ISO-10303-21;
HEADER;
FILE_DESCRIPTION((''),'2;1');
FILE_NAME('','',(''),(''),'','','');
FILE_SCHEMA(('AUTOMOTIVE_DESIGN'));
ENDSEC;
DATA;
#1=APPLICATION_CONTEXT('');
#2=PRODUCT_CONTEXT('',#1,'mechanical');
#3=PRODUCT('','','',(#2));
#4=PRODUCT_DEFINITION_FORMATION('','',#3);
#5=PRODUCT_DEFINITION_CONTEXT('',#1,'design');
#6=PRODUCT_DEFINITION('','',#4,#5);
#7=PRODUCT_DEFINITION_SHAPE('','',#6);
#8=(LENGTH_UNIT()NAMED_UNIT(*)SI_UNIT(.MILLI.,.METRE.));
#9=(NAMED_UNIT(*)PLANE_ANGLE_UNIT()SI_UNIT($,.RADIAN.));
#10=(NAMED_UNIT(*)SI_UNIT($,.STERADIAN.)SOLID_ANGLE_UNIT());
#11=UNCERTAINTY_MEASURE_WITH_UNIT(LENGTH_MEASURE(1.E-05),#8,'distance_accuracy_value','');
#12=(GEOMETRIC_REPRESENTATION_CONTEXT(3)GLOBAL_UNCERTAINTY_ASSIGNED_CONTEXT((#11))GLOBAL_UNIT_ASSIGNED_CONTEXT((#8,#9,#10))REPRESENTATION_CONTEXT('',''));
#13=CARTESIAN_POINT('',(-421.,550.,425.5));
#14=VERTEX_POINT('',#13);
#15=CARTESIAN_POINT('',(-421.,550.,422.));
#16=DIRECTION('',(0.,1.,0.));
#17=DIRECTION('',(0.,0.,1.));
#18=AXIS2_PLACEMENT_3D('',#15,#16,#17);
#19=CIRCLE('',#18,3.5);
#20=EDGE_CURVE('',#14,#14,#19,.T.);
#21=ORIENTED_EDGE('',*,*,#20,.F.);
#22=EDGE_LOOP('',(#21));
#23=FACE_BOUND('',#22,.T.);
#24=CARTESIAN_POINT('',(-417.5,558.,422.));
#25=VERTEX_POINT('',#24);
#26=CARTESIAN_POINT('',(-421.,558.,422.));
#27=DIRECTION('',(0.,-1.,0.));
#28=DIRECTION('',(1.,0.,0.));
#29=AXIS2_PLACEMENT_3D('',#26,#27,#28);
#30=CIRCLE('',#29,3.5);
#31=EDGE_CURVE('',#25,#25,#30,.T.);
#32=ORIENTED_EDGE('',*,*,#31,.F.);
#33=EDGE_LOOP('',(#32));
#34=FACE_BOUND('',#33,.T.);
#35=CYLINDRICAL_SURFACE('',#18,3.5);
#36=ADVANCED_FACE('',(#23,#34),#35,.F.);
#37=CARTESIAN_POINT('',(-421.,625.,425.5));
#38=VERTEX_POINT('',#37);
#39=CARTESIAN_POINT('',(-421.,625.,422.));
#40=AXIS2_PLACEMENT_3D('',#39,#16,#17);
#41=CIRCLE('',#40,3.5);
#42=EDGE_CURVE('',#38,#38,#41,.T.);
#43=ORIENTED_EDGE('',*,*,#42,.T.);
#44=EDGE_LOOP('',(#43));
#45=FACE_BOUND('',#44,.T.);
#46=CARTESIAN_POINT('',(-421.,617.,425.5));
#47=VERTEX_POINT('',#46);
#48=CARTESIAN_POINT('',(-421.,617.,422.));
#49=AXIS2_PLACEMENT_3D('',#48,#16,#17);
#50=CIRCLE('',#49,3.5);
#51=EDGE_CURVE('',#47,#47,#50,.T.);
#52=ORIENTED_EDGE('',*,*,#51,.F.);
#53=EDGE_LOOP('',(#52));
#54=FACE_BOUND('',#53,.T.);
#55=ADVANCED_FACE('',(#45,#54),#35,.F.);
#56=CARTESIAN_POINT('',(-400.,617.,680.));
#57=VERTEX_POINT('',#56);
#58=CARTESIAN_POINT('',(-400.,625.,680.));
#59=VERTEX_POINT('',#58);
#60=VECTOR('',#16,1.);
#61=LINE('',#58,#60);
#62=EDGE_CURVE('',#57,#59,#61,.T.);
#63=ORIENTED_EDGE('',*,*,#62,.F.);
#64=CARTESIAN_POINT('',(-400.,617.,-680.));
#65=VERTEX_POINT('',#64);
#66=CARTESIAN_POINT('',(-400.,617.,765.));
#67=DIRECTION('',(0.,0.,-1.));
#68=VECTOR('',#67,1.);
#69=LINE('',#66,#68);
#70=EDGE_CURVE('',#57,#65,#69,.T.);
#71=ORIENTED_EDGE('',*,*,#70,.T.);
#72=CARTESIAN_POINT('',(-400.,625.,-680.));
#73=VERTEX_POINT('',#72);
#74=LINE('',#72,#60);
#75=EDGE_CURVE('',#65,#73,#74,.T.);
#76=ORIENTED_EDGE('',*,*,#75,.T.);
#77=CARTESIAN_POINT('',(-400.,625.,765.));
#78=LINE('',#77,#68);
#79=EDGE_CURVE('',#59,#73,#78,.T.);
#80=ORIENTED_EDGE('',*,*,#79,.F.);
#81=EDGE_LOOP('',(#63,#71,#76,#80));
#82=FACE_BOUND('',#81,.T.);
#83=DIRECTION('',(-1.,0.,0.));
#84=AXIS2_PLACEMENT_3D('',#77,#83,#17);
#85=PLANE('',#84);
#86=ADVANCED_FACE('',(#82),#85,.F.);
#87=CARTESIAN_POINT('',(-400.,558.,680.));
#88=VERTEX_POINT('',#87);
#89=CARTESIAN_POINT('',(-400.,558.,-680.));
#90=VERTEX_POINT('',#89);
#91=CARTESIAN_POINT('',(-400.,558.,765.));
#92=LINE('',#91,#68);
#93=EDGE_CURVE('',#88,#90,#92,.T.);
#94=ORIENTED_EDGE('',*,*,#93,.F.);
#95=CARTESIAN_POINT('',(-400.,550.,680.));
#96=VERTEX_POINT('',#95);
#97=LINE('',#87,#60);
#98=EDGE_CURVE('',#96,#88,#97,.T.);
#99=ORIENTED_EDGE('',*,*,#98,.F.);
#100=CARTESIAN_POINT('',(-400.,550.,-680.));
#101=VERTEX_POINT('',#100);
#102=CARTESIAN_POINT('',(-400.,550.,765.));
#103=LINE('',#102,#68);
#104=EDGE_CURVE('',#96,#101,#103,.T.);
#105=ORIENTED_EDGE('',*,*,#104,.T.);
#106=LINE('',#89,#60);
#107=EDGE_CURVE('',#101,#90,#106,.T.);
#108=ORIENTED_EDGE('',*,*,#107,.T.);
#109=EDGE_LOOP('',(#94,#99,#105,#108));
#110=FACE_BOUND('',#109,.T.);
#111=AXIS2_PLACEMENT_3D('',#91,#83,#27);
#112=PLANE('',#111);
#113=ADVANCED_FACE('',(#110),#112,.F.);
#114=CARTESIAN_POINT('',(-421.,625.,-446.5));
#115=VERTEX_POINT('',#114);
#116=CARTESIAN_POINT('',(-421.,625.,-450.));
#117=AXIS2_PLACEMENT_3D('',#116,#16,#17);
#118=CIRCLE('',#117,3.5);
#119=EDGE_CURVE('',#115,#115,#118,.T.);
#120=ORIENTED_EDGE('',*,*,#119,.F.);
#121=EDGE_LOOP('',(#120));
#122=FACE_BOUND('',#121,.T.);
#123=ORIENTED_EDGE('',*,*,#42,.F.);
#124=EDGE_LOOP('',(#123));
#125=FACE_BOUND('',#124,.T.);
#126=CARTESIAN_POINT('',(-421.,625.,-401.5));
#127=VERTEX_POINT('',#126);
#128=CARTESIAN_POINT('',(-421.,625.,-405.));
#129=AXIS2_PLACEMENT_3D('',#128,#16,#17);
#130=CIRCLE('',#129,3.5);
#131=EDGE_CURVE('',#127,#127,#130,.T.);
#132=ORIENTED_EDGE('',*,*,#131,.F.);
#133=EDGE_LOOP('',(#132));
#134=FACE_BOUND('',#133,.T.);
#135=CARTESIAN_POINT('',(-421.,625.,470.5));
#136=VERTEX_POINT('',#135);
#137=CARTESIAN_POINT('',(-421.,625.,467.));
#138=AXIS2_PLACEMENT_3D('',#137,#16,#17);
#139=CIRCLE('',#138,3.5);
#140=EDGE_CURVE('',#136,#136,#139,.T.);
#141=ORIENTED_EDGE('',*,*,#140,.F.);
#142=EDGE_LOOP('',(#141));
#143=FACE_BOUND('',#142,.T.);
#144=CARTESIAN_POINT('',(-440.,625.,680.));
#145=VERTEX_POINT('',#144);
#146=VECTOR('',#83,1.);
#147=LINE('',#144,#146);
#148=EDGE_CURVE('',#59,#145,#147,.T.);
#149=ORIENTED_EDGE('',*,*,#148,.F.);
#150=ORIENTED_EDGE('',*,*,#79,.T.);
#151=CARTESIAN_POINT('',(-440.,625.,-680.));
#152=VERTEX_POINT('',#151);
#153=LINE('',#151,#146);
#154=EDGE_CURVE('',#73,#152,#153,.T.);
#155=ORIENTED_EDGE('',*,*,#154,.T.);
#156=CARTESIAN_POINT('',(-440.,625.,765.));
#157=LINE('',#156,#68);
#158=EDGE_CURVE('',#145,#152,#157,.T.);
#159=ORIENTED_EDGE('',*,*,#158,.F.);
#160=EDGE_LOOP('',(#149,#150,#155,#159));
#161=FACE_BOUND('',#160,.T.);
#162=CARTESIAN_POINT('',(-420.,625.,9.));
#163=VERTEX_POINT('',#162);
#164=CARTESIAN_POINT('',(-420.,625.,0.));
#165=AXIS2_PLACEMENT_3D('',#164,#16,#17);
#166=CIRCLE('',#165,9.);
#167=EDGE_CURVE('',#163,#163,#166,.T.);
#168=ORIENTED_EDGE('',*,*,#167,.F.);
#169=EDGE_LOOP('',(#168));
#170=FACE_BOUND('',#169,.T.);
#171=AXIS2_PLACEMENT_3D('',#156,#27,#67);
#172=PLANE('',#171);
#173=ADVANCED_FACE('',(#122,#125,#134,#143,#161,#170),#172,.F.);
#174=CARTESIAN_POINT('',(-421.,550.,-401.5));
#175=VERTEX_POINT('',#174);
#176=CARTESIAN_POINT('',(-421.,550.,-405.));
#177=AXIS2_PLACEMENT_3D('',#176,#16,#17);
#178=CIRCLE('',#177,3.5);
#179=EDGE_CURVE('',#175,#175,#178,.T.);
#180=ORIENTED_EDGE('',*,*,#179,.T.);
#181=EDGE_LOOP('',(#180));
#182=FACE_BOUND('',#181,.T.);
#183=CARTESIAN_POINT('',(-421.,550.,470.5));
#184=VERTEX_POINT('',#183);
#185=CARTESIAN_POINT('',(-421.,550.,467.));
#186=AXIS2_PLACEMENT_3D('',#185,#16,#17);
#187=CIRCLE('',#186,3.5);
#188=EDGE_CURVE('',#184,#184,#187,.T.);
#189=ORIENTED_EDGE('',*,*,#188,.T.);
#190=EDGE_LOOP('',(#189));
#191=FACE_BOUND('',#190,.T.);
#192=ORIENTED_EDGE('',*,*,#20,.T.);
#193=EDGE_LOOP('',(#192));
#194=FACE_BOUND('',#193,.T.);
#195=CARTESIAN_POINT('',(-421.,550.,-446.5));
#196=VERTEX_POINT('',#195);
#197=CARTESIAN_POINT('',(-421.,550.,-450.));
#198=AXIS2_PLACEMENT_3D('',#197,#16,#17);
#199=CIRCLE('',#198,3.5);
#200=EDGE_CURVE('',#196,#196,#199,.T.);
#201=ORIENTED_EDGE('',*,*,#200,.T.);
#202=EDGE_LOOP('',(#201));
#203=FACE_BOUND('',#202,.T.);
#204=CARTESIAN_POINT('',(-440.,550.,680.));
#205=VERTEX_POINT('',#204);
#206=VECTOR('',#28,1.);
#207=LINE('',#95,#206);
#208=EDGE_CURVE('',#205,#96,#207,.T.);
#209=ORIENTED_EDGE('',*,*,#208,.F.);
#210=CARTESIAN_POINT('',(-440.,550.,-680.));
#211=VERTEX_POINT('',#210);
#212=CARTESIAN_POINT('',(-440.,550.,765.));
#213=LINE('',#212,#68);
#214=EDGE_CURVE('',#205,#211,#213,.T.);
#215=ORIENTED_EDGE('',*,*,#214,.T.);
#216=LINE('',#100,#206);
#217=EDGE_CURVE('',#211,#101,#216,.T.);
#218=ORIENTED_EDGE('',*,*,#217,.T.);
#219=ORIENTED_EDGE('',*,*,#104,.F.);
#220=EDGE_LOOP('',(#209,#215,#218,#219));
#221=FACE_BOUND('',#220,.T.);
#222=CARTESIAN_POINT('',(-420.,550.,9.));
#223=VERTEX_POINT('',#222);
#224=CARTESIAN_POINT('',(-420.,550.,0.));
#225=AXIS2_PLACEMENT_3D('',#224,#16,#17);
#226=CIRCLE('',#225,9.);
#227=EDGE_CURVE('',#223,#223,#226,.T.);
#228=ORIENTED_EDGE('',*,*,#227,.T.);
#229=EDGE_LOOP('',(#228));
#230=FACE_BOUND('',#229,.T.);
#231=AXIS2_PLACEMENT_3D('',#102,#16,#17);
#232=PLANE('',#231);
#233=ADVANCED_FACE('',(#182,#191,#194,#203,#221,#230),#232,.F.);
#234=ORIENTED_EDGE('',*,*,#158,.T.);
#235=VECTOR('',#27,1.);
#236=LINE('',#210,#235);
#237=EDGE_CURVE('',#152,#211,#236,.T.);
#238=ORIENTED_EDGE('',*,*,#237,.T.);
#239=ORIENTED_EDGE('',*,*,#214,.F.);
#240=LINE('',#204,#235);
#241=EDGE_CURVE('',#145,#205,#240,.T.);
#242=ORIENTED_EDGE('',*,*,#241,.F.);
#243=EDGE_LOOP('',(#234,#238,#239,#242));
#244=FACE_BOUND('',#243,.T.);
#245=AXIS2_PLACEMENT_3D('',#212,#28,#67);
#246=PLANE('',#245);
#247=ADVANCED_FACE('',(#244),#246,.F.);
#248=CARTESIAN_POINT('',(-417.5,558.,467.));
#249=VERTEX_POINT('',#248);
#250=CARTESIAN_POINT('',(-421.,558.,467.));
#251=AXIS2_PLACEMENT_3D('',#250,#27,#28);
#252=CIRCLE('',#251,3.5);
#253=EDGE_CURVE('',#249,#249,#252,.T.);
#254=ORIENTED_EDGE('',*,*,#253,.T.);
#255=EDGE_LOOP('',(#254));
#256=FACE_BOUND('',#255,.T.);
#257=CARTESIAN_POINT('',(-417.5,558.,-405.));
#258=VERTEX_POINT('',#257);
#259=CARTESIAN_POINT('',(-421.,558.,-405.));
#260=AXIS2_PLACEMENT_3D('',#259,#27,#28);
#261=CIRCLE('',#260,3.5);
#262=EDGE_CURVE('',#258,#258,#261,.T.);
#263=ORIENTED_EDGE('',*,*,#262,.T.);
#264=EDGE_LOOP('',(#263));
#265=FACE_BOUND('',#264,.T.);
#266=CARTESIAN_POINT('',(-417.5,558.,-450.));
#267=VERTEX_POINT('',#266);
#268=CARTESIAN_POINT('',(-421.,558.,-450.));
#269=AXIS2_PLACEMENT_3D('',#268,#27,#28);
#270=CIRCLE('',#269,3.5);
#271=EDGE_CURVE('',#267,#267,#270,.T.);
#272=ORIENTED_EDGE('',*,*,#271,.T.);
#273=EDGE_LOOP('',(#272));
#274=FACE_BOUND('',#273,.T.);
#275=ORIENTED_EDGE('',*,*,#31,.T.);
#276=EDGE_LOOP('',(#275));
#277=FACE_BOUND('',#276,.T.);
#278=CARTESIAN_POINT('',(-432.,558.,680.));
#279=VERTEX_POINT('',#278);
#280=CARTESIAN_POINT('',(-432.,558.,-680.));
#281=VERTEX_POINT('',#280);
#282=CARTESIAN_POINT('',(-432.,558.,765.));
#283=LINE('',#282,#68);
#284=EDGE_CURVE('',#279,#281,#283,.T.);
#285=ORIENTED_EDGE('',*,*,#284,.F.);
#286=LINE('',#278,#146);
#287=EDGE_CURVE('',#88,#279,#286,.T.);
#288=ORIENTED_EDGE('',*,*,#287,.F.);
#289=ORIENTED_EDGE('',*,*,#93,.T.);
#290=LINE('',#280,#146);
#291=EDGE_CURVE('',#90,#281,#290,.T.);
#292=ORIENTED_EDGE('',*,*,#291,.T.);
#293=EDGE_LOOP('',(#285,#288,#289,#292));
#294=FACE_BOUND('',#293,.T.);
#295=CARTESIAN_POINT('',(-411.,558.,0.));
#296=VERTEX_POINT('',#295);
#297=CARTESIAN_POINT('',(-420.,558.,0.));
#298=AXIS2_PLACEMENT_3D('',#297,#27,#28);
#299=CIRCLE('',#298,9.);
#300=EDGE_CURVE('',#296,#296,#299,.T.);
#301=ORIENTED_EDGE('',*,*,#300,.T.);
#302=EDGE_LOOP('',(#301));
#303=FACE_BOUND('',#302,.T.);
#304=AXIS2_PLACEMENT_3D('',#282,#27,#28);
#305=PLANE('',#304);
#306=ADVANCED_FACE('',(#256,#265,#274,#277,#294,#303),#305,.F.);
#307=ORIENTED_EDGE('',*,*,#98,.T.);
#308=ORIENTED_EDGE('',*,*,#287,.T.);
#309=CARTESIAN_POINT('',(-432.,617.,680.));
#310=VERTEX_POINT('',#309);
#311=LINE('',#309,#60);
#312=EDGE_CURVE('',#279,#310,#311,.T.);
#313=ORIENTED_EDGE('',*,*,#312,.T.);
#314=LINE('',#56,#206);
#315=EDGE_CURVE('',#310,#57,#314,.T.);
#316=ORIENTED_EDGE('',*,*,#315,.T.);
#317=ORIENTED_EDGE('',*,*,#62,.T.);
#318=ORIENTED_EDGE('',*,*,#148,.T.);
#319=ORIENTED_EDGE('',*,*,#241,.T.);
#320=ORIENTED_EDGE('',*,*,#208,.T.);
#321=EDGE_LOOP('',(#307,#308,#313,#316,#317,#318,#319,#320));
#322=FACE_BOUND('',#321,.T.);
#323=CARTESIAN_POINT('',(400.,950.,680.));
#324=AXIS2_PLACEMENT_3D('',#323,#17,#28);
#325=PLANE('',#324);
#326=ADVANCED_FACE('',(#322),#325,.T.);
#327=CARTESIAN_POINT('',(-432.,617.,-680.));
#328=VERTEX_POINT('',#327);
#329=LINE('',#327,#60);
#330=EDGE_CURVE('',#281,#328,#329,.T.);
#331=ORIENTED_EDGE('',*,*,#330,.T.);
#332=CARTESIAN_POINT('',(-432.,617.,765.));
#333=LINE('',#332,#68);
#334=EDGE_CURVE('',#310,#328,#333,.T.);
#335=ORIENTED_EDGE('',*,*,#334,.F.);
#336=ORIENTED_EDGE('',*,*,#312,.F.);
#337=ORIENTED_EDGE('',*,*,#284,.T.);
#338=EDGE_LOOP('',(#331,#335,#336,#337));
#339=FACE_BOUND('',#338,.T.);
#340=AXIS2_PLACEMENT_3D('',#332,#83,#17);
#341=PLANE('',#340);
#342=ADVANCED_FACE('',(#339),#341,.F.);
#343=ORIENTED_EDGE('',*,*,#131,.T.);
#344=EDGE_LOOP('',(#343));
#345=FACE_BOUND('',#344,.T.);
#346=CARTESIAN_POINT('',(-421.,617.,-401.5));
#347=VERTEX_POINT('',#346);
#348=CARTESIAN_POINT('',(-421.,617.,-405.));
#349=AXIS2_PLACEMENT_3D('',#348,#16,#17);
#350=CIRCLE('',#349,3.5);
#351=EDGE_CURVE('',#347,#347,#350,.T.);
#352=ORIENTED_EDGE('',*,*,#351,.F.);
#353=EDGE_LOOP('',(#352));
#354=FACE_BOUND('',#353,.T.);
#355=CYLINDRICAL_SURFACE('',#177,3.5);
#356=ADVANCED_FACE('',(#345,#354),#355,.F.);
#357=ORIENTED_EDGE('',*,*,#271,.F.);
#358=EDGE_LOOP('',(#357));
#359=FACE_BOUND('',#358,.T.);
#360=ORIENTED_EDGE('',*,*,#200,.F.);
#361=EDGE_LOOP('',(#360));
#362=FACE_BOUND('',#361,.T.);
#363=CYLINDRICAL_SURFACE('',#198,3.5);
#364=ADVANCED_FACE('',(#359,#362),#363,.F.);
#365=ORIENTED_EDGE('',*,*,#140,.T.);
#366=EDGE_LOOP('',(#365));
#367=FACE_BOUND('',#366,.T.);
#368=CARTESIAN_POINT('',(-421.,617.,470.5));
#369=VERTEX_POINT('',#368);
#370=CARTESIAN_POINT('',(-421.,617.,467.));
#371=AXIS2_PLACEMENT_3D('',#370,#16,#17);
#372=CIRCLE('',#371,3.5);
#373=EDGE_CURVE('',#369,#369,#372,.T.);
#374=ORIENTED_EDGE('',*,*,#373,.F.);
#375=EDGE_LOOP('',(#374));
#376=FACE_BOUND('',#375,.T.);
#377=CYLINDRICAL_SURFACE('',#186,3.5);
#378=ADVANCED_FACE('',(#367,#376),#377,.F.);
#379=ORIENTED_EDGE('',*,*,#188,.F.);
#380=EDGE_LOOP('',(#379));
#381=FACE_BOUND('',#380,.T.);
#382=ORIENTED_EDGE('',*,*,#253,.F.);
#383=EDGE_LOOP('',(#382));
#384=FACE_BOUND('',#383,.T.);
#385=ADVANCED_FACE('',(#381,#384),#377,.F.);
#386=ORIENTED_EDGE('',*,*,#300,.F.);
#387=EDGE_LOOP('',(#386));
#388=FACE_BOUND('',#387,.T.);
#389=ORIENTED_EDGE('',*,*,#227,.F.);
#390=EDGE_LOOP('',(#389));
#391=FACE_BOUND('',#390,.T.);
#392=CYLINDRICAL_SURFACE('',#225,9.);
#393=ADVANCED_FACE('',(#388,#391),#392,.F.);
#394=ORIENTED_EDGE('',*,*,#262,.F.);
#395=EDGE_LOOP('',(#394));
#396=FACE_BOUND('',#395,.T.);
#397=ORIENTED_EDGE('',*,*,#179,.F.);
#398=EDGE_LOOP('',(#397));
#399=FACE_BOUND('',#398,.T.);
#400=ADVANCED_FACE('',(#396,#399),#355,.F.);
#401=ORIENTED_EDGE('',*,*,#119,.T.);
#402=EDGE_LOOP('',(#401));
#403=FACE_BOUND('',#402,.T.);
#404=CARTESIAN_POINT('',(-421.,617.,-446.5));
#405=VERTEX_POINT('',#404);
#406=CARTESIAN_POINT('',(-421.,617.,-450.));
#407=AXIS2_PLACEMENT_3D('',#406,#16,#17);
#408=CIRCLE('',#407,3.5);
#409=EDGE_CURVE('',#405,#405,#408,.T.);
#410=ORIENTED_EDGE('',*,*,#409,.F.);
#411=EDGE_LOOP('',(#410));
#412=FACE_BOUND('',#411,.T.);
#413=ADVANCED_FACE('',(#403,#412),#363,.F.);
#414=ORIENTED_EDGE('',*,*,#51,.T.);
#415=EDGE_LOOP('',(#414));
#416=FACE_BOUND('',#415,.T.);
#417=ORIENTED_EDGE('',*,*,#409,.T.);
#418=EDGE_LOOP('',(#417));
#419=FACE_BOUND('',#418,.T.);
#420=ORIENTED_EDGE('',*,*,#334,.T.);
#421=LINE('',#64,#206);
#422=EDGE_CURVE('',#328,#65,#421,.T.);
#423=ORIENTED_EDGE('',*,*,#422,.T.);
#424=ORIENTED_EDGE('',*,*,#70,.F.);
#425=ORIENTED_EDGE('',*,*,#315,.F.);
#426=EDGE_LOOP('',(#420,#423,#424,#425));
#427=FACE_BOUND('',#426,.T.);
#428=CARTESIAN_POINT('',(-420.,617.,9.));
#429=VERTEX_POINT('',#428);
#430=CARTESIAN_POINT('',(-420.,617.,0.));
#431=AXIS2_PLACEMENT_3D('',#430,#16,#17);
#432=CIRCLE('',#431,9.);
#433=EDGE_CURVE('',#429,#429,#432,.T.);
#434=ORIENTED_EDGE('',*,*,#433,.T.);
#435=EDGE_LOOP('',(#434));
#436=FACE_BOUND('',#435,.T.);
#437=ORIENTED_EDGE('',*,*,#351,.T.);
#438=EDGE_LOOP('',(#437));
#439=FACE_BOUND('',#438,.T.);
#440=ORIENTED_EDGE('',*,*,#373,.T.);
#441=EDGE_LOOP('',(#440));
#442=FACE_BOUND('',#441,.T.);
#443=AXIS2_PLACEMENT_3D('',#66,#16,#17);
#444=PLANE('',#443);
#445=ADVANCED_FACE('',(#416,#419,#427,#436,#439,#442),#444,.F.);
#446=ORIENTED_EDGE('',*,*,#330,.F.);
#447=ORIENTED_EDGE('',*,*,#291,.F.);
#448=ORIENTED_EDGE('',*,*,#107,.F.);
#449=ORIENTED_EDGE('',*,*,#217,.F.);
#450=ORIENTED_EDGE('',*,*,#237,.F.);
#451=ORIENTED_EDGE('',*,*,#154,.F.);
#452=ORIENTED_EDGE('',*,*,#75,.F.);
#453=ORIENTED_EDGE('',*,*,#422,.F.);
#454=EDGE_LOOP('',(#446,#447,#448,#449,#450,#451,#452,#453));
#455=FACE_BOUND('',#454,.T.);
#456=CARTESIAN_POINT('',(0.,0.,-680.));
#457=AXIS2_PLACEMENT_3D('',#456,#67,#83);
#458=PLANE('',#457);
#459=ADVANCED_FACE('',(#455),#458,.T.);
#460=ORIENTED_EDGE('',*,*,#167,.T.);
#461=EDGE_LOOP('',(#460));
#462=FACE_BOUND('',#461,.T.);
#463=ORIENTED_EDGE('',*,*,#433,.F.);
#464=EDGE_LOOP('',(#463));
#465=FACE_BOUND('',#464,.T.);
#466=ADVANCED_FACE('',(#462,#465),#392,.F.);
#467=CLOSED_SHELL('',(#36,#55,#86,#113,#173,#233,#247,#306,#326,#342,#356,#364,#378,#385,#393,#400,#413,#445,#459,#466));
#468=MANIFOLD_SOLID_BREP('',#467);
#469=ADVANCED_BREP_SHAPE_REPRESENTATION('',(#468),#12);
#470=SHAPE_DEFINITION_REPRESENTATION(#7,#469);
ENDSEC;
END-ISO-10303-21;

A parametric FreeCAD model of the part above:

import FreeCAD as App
import Part
import Sketcher
Q = App.Units.Quantity


def add_polygon(sketch, points):
    """Adds a closed chain of lines whose ends are joined by coincident constraints."""
    first, n = sketch.GeometryCount, len(points)
    for a, b in zip(points, points[1:] + points[:1]):
        sketch.addGeometry(Part.LineSegment(App.Vector(*a, 0), App.Vector(*b, 0)), False)
    for i in range(n):
        sketch.addConstraint(Sketcher.Constraint("Coincident", first + i, 2, first + (i + 1) % n, 1))

doc = App.newDocument("Part")
params = doc.addObject("Spreadsheet::Sheet", "Params")
for row, (alias, value) in enumerate([
    ("sketch1_width", "40 mm"),
    ("sketch1_width2", "32 mm"),
    ("sketch1_height", "75 mm"),
    ("sketch1_height2", "8 mm"),
    ("pad1_length", "1360 mm"),
    ("sketch2_diameter", "7 mm"),
    ("sketch2_diameter2", "18 mm"),
], start=1):
    params.set(f"A{row}", alias)
    params.set(f"B{row}", "=" + value)
    params.setAlias(f"B{row}", alias)

body = doc.addObject("PartDesign::Body", "Body")

# Sketch on XY plane
sketch1 = doc.addObject("Sketcher::SketchObject", "Sketch")
body.addObject(sketch1)
sketch1.AttachmentSupport = (doc.XY_Plane, [""])
sketch1.MapMode = "FlatFace"
sketch1.AttachmentOffset = App.Placement(App.Vector(0, 0, -680), App.Rotation())
add_polygon(sketch1, [(-440, 625), (-440, 550), (-400, 550), (-400, 558), (-432, 558), (-432, 617), (-400, 617), (-400, 625)])  # lines 0-7
sketch1.addConstraint([
    Sketcher.Constraint("Vertical", 0),
    Sketcher.Constraint("Horizontal", 1),
    Sketcher.Constraint("Vertical", 2),
    Sketcher.Constraint("Horizontal", 3),
    Sketcher.Constraint("Vertical", 4),
    Sketcher.Constraint("Horizontal", 5),
    Sketcher.Constraint("Vertical", 6),
    Sketcher.Constraint("Horizontal", 7),
    Sketcher.Constraint("Vertical", 2, 2, 5, 2),
    Sketcher.Constraint("Equal", 2, 6),
    Sketcher.Constraint("DistanceX", 1, 1, 1, 2, Q("40 mm")),
    Sketcher.Constraint("DistanceX", 3, 2, 3, 1, Q("32 mm")),
    Sketcher.Constraint("DistanceY", 0, 2, 0, 1, Q("75 mm")),
    Sketcher.Constraint("DistanceY", 2, 1, 2, 2, Q("8 mm")),
    Sketcher.Constraint("DistanceX", 0, 2, -1, 1, Q("440 mm")),
    Sketcher.Constraint("DistanceY", -1, 1, 0, 2, Q("550 mm")),
])
sketch1.setExpression("Constraints[18]", "Params.sketch1_width")
sketch1.setExpression("Constraints[19]", "Params.sketch1_width2")
sketch1.setExpression("Constraints[20]", "Params.sketch1_height")
sketch1.setExpression("Constraints[21]", "Params.sketch1_height2")
pad1 = doc.addObject("PartDesign::Pad", "Pad")
body.addObject(pad1)
pad1.Profile = sketch1
pad1.setExpression("Length", "Params.pad1_length")

# Sketch on XZ plane
sketch2 = doc.addObject("Sketcher::SketchObject", "Sketch001")
body.addObject(sketch2)
sketch2.AttachmentSupport = (doc.XZ_Plane, [""])
sketch2.MapMode = "FlatFace"
sketch2.AttachmentOffset = App.Placement(App.Vector(0, 0, -625), App.Rotation())
sketch2.addGeometry([
    Part.Circle(App.Vector(-421, 467, 0), App.Vector(0, 0, 1), 3.5),  # 0
    Part.Circle(App.Vector(-421, 422, 0), App.Vector(0, 0, 1), 3.5),  # 1
    Part.Circle(App.Vector(-420, 0, 0), App.Vector(0, 0, 1), 9),  # 2
    Part.Circle(App.Vector(-421, -450, 0), App.Vector(0, 0, 1), 3.5),  # 3
    Part.Circle(App.Vector(-421, -405, 0), App.Vector(0, 0, 1), 3.5),  # 4
], False)
sketch2.addConstraint([
    Sketcher.Constraint("Equal", 0, 1),
    Sketcher.Constraint("Equal", 1, 3),
    Sketcher.Constraint("Equal", 3, 4),
    Sketcher.Constraint("PointOnObject", 2, 3, -1),
    Sketcher.Constraint("Vertical", 0, 3, 1, 3),
    Sketcher.Constraint("Vertical", 1, 3, 3, 3),
    Sketcher.Constraint("Vertical", 3, 3, 4, 3),
    Sketcher.Constraint("Diameter", 0, Q("7 mm")),
    Sketcher.Constraint("Diameter", 2, Q("18 mm")),
    Sketcher.Constraint("DistanceX", 0, 3, -1, 1, Q("421 mm")),
    Sketcher.Constraint("DistanceY", -1, 1, 0, 3, Q("467 mm")),
    Sketcher.Constraint("DistanceY", -1, 1, 1, 3, Q("422 mm")),
    Sketcher.Constraint("DistanceX", 2, 3, -1, 1, Q("420 mm")),
    Sketcher.Constraint("DistanceY", 3, 3, -1, 1, Q("450 mm")),
    Sketcher.Constraint("DistanceY", 4, 3, -1, 1, Q("405 mm")),
])
sketch2.setExpression("Constraints[7]", "Params.sketch2_diameter")
sketch2.setExpression("Constraints[8]", "Params.sketch2_diameter2")
pocket1 = doc.addObject("PartDesign::Pocket", "Pocket")
body.addObject(pocket1)
pocket1.Profile = sketch2
pocket1.Type = "ThroughAll"
pocket1.Reversed = True

doc.recompute()
